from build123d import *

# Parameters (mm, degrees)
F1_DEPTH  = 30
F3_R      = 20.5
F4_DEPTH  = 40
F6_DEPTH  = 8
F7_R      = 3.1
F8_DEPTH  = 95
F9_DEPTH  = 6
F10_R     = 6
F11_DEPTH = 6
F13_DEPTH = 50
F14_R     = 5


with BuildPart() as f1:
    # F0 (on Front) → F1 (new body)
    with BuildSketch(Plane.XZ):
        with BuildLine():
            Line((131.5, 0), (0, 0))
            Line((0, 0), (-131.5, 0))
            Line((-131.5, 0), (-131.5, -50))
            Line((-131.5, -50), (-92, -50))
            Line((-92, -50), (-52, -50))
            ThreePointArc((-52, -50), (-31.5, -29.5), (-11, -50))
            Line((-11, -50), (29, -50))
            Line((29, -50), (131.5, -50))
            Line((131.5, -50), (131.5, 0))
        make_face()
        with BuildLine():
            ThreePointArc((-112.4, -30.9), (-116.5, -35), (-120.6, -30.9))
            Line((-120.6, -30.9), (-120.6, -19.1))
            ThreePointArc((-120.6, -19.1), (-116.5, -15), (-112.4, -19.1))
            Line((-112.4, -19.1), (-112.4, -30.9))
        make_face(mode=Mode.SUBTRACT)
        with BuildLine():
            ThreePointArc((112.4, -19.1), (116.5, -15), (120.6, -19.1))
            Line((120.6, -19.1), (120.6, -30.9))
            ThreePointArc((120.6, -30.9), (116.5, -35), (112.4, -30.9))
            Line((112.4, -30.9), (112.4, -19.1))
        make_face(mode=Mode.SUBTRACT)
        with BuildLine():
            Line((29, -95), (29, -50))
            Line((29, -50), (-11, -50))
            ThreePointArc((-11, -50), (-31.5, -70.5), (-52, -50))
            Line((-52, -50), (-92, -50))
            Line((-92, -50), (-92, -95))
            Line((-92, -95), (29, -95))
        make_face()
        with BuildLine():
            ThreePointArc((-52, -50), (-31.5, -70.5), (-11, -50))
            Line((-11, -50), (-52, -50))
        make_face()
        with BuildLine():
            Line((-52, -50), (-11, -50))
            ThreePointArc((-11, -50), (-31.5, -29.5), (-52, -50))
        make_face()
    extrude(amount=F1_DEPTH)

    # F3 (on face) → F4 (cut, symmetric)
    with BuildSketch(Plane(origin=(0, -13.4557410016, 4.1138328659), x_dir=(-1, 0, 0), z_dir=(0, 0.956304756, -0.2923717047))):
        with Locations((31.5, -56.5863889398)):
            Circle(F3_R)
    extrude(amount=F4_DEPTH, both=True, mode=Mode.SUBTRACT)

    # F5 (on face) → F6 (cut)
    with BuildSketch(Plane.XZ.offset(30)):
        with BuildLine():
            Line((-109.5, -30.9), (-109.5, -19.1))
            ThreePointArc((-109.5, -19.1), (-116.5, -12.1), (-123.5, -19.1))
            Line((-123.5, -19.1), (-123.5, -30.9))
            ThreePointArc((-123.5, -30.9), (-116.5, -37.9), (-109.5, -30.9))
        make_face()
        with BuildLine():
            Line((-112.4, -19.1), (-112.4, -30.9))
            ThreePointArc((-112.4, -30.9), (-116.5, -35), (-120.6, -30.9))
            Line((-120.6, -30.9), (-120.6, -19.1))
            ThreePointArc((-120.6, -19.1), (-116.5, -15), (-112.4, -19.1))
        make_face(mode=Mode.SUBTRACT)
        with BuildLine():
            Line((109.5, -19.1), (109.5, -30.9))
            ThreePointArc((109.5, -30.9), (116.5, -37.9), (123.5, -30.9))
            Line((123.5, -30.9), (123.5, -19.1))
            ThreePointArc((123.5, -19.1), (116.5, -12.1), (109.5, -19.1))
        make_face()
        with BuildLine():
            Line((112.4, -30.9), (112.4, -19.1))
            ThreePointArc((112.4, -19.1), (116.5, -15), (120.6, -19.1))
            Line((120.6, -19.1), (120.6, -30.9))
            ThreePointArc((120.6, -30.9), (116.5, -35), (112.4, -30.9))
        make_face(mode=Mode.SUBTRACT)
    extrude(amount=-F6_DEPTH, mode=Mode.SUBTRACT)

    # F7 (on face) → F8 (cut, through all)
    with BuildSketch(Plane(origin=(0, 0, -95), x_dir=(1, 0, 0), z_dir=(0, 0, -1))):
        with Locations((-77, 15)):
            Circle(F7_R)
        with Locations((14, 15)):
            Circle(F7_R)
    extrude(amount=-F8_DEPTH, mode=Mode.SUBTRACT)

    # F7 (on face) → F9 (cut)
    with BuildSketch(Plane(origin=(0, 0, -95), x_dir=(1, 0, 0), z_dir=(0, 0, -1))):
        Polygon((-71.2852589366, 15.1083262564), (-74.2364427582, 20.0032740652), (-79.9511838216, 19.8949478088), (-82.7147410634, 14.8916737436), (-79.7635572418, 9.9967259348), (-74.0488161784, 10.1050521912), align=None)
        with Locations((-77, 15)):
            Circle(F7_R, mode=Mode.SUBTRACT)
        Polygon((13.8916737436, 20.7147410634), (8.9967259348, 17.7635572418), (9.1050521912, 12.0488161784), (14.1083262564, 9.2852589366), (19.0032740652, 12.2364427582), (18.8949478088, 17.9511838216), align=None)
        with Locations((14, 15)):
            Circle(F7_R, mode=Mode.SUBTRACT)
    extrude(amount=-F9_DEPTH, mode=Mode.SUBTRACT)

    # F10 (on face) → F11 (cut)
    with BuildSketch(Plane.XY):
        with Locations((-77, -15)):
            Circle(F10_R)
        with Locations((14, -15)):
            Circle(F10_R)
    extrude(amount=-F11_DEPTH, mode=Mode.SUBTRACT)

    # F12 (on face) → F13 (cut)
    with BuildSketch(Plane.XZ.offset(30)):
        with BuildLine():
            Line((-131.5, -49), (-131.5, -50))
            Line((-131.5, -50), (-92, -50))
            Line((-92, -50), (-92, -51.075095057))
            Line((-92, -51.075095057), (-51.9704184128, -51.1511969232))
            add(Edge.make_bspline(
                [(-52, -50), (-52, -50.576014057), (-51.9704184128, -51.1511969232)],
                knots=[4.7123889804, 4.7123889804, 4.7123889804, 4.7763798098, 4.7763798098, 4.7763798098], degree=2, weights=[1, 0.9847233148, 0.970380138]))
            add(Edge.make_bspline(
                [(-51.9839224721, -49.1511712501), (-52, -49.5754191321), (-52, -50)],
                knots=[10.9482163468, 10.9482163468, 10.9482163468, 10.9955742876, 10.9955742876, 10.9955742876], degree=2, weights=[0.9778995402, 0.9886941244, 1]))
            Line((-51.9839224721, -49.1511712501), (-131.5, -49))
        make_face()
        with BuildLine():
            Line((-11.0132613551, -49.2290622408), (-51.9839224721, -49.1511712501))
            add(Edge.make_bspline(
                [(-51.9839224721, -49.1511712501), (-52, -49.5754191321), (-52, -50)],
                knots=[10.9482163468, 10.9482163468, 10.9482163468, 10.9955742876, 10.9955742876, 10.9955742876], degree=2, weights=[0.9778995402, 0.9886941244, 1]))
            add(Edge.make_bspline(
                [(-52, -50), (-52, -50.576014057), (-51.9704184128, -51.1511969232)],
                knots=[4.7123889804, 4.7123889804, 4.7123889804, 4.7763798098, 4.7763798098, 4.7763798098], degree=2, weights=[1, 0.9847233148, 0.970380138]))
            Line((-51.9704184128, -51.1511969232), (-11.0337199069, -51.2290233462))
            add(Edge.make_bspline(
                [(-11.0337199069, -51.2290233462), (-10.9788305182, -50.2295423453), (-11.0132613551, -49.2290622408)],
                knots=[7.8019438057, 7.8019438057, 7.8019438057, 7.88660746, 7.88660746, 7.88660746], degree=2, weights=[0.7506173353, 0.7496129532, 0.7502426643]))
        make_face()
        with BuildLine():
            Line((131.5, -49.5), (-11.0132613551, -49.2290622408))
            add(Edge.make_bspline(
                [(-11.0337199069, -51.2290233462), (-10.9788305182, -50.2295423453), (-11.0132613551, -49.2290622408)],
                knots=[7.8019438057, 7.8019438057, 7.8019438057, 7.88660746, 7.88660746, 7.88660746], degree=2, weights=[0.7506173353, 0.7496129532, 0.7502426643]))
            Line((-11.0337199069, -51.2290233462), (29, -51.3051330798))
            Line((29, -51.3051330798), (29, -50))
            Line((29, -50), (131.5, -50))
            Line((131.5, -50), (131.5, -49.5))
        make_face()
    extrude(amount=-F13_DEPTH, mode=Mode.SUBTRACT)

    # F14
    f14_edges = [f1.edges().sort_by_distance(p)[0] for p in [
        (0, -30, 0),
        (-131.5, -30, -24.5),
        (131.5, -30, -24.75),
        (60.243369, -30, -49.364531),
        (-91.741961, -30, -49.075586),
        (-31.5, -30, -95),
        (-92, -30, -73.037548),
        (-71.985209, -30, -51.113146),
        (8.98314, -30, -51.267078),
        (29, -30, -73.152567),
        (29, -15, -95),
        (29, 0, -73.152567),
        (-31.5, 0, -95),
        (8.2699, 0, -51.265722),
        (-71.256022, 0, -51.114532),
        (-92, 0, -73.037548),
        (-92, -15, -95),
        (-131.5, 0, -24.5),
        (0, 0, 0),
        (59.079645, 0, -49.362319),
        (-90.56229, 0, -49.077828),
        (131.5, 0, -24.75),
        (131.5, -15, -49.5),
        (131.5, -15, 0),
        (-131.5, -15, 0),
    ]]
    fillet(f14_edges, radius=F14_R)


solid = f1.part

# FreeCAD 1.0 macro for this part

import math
import FreeCAD as App
import Part
import Sketcher

V = App.Vector
Q = App.Units.Quantity


def edges_at(feature, points):
    """Names of the edges that pass closest to the given points."""
    edges = feature.Shape.Edges
    near = lambda p: min(range(len(edges)), key=lambda i: edges[i].distToShape(Part.Vertex(*p))[0])
    return sorted({f"Edge{near(p) + 1}" for p in points})


def add_polygon(sketch, points):
    """Adds a closed chain of lines whose ends are joined by coincident constraints."""
    first, n = sketch.GeometryCount, len(points)
    for a, b in zip(points, points[1:] + points[:1]):
        sketch.addGeometry(Part.LineSegment(App.Vector(*a, 0), App.Vector(*b, 0)), False)
    for i in range(n):
        sketch.addConstraint(Sketcher.Constraint("Coincident", first + i, 2, first + (i + 1) % n, 1))

doc = App.newDocument("Part")
params = doc.addObject("Spreadsheet::Sheet", "Params")
for row, (alias, value) in enumerate([
    ("sketch1_radius", "4.1 mm"),
    ("sketch1_width", "263 mm"),
    ("sketch1_width2", "121 mm"),
    ("sketch1_height", "50 mm"),
    ("sketch1_height2", "45 mm"),
    ("pad1_length", "30 mm"),
    ("sketch2_diameter", "41 mm"),
    ("pocket1_length", "80 mm"),
    ("sketch3_radius", "7 mm"),
    ("sketch3_radius2", "4.1 mm"),
    ("sketch3_height", "11.8 mm"),
    ("pocket2_length", "8 mm"),
    ("sketch4_diameter", "6.2 mm"),
    ("sketch5_diameter", "6.2 mm"),
    ("pocket4_length", "6 mm"),
    ("sketch6_diameter", "12 mm"),
    ("pocket5_length", "6 mm"),
    ("sketch7_height", "1 mm"),
    ("sketch7_width", "39.5 mm"),
    ("sketch7_width2", "102.5 mm"),
    ("sketch7_height2", "0.5 mm"),
    ("pocket6_length", "50 mm"),
    ("fillet_radius", "5 mm"),
], start=1):
    params.set(f"A{row}", alias)
    params.set(f"B{row}", "=" + value)
    params.setAlias(f"B{row}", alias)

body = doc.addObject("PartDesign::Body", "Body")
body.AllowCompound = True

sketch1 = body.newObject("Sketcher::SketchObject", "Sketch")
sketch1.AttachmentSupport = (doc.getObject("XZ_Plane"), [""])
sketch1.MapMode = "FlatFace"
add_polygon(sketch1, [(131.5, 0), (-131.5, 0), (-131.5, -50), (-92, -50), (-92, -95), (29, -95), (29, -50), (131.5, -50)])
sketch1.addGeometry(Part.LineSegment(V(-112.4, -19.1, 0), V(-112.4, -30.9, 0)), False)
sketch1.addGeometry(Part.ArcOfCircle(Part.Circle(V(-116.5, -30.9, 0), V(0, 0, 1), 4.1), math.radians(180), math.radians(360)), False)
sketch1.addGeometry(Part.LineSegment(V(-120.6, -30.9, 0), V(-120.6, -19.1, 0)), False)
sketch1.addGeometry(Part.ArcOfCircle(Part.Circle(V(-116.5, -19.1, 0), V(0, 0, 1), 4.1), math.radians(0), math.radians(180)), False)
sketch1.addGeometry(Part.LineSegment(V(112.4, -30.9, 0), V(112.4, -19.1, 0)), False)
sketch1.addGeometry(Part.ArcOfCircle(Part.Circle(V(116.5, -19.1, 0), V(0, 0, 1), 4.1), math.radians(0), math.radians(180)), False)
sketch1.addGeometry(Part.LineSegment(V(120.6, -19.1, 0), V(120.6, -30.9, 0)), False)
sketch1.addGeometry(Part.ArcOfCircle(Part.Circle(V(116.5, -30.9, 0), V(0, 0, 1), 4.1), math.radians(180), math.radians(360)), False)
sketch1.addConstraint([
    Sketcher.Constraint("Tangent", 8, 2, 9, 2),
    Sketcher.Constraint("Tangent", 9, 1, 10, 1),
    Sketcher.Constraint("Tangent", 10, 2, 11, 2),
    Sketcher.Constraint("Tangent", 11, 1, 8, 1),
    Sketcher.Constraint("Tangent", 12, 2, 13, 2),
    Sketcher.Constraint("Tangent", 13, 1, 14, 1),
    Sketcher.Constraint("Tangent", 14, 2, 15, 2),
    Sketcher.Constraint("Tangent", 15, 1, 12, 1),
    Sketcher.Constraint("Horizontal", 0),
    Sketcher.Constraint("Vertical", 1),
    Sketcher.Constraint("Horizontal", 2),
    Sketcher.Constraint("Vertical", 3),
    Sketcher.Constraint("Horizontal", 4),
    Sketcher.Constraint("Vertical", 5),
    Sketcher.Constraint("Horizontal", 6),
    Sketcher.Constraint("Vertical", 7),
    Sketcher.Constraint("Vertical", 8),
    Sketcher.Constraint("Vertical", 10),
    Sketcher.Constraint("Vertical", 12),
    Sketcher.Constraint("Vertical", 14),
    Sketcher.Constraint("Equal", 11, 13),
    Sketcher.Constraint("Symmetric", 0, 2, 7, 2, -1, 1),
    Sketcher.Constraint("Symmetric", 11, 3, 13, 3, -2),
    Sketcher.Constraint("Horizontal", 9, 3, 15, 3),
    Sketcher.Constraint("Horizontal", 2, 2, 5, 2),
    Sketcher.Constraint("Radius", 9, Q("4.1 mm")),
    Sketcher.Constraint("DistanceX", 0, 2, 0, 1, Q("263 mm")),
    Sketcher.Constraint("DistanceX", 4, 1, 4, 2, Q("121 mm")),
    Sketcher.Constraint("DistanceY", 1, 2, 1, 1, Q("50 mm")),
    Sketcher.Constraint("DistanceY", 3, 2, 3, 1, Q("45 mm")),
    Sketcher.Constraint("DistanceX", 2, 1, 2, 2, Q("39.5 mm")),
    Sketcher.Constraint("DistanceY", 8, 2, 8, 1, Q("11.8 mm")),
    Sketcher.Constraint("DistanceX", 11, 3, 13, 3, Q("233 mm")),
    Sketcher.Constraint("DistanceY", 9, 3, -1, 1, Q("30.9 mm")),
])
sketch1.setExpression("Constraints[33]", "Params.sketch1_radius")
sketch1.setExpression("Constraints[34]", "Params.sketch1_width")
sketch1.setExpression("Constraints[35]", "Params.sketch1_width2")
sketch1.setExpression("Constraints[36]", "Params.sketch1_height")
sketch1.setExpression("Constraints[37]", "Params.sketch1_height2")
pad1 = body.newObject("PartDesign::Pad", "Pad")
pad1.Profile = sketch1
pad1.setExpression("Length", "Params.pad1_length")

sketch2 = body.newObject("Sketcher::SketchObject", "Sketch001")
sketch2.Placement = App.Placement(V(0, -13.455741, 4.113833), App.Rotation(V(-1, 0, 0), V(0, 0.292371705, 0.956304756), V(0, 0.956304756, -0.292371705), "ZXY"))
sketch2.addGeometry(Part.Circle(V(32, -57, 0), V(0, 0, 1), 20), False)
sketch2.addConstraint([
    Sketcher.Constraint("Diameter", 0, Q("41 mm")),
    Sketcher.Constraint("DistanceX", -1, 1, 0, 3, Q("31.5 mm")),
    Sketcher.Constraint("DistanceY", 0, 3, -1, 1, Q("56.586389 mm")),
])
sketch2.setExpression("Constraints[0]", "Params.sketch2_diameter")
pocket1 = body.newObject("PartDesign::Pocket", "Pocket")
pocket1.Profile = sketch2
pocket1.setExpression("Length", "Params.pocket1_length")
pocket1.Midplane = True

sketch3 = body.newObject("Sketcher::SketchObject", "Sketch002")
sketch3.AttachmentSupport = (doc.getObject("XZ_Plane"), [""])
sketch3.MapMode = "FlatFace"
sketch3.AttachmentOffset = App.Placement(V(0, 0, 30), App.Rotation())
sketch3.addGeometry([
    Part.LineSegment(V(-109.5, -30.9, 0), V(-109.5, -19.1, 0)),
    Part.ArcOfCircle(Part.Circle(V(-116.5, -19.1, 0), V(0, 0, 1), 7), math.radians(0), math.radians(180)),
    Part.LineSegment(V(-123.5, -19.1, 0), V(-123.5, -30.9, 0)),
    Part.ArcOfCircle(Part.Circle(V(-116.5, -30.9, 0), V(0, 0, 1), 7), math.radians(180), math.radians(360)),
    Part.ArcOfCircle(Part.Circle(V(-116.5, -19.1, 0), V(0, 0, 1), 4.1), math.radians(0), math.radians(180)),
    Part.LineSegment(V(-112.4, -19.1, 0), V(-112.4, -30.9, 0)),
    Part.ArcOfCircle(Part.Circle(V(-116.5, -30.9, 0), V(0, 0, 1), 4.1), math.radians(180), math.radians(360)),
    Part.LineSegment(V(-120.6, -30.9, 0), V(-120.6, -19.1, 0)),
    Part.LineSegment(V(109.5, -19.1, 0), V(109.5, -30.9, 0)),
    Part.ArcOfCircle(Part.Circle(V(116.5, -30.9, 0), V(0, 0, 1), 7), math.radians(180), math.radians(360)),
    Part.LineSegment(V(123.5, -30.9, 0), V(123.5, -19.1, 0)),
    Part.ArcOfCircle(Part.Circle(V(116.5, -19.1, 0), V(0, 0, 1), 7), math.radians(0), math.radians(180)),
    Part.ArcOfCircle(Part.Circle(V(116.5, -30.9, 0), V(0, 0, 1), 4.1), math.radians(180), math.radians(360)),
    Part.LineSegment(V(112.4, -30.9, 0), V(112.4, -19.1, 0)),
    Part.ArcOfCircle(Part.Circle(V(116.5, -19.1, 0), V(0, 0, 1), 4.1), math.radians(0), math.radians(180)),
    Part.LineSegment(V(120.6, -19.1, 0), V(120.6, -30.9, 0)),
], False)
sketch3.addConstraint([
    Sketcher.Constraint("Tangent", 0, 2, 1, 1),
    Sketcher.Constraint("Tangent", 1, 2, 2, 1),
    Sketcher.Constraint("Tangent", 2, 2, 3, 1),
    Sketcher.Constraint("Tangent", 3, 2, 0, 1),
    Sketcher.Constraint("Tangent", 4, 1, 5, 1),
    Sketcher.Constraint("Tangent", 5, 2, 6, 2),
    Sketcher.Constraint("Tangent", 6, 1, 7, 1),
    Sketcher.Constraint("Tangent", 7, 2, 4, 2),
    Sketcher.Constraint("Tangent", 8, 2, 9, 1),
    Sketcher.Constraint("Tangent", 9, 2, 10, 1),
    Sketcher.Constraint("Tangent", 10, 2, 11, 1),
    Sketcher.Constraint("Tangent", 11, 2, 8, 1),
    Sketcher.Constraint("Tangent", 12, 1, 13, 1),
    Sketcher.Constraint("Tangent", 13, 2, 14, 2),
    Sketcher.Constraint("Tangent", 14, 1, 15, 1),
    Sketcher.Constraint("Tangent", 15, 2, 12, 2),
    Sketcher.Constraint("Vertical", 0),
    Sketcher.Constraint("Vertical", 2),
    Sketcher.Constraint("Vertical", 5),
    Sketcher.Constraint("Vertical", 7),
    Sketcher.Constraint("Vertical", 8),
    Sketcher.Constraint("Vertical", 10),
    Sketcher.Constraint("Vertical", 13),
    Sketcher.Constraint("Vertical", 15),
    Sketcher.Constraint("Coincident", 4, 3, 1, 3),
    Sketcher.Constraint("Coincident", 12, 3, 9, 3),
    Sketcher.Constraint("Equal", 3, 9),
    Sketcher.Constraint("Equal", 6, 12),
    Sketcher.Constraint("Symmetric", 3, 3, 9, 3, -2),
    Sketcher.Constraint("Horizontal", 6, 3, 9, 3),
    Sketcher.Constraint("Horizontal", 4, 3, 11, 3),
    Sketcher.Constraint("Horizontal", 4, 3, 14, 3),
    Sketcher.Constraint("Radius", 1, Q("7 mm")),
    Sketcher.Constraint("Radius", 4, Q("4.1 mm")),
    Sketcher.Constraint("DistanceY", 0, 1, 0, 2, Q("11.8 mm")),
    Sketcher.Constraint("DistanceX", 3, 3, 9, 3, Q("233 mm")),
    Sketcher.Constraint("DistanceY", 1, 3, -1, 1, Q("19.1 mm")),
])
sketch3.setExpression("Constraints[32]", "Params.sketch3_radius")
sketch3.setExpression("Constraints[33]", "Params.sketch3_radius2")
sketch3.setExpression("Constraints[34]", "Params.sketch3_height")
pocket2 = body.newObject("PartDesign::Pocket", "Pocket001")
pocket2.Profile = sketch3
pocket2.setExpression("Length", "Params.pocket2_length")

sketch4 = body.newObject("Sketcher::SketchObject", "Sketch003")
sketch4.AttachmentSupport = (doc.getObject("XY_Plane"), [""])
sketch4.MapMode = "FlatFace"
sketch4.AttachmentOffset = App.Placement(V(0, 0, -95), App.Rotation())
sketch4.addGeometry([
    Part.Circle(V(-77, -15, 0), V(0, 0, 1), 3.1),
    Part.Circle(V(14, -15, 0), V(0, 0, 1), 3.1),
], False)
sketch4.addConstraint([
    Sketcher.Constraint("Equal", 0, 1),
    Sketcher.Constraint("Horizontal", 0, 3, 1, 3),
    Sketcher.Constraint("Diameter", 0, Q("6.2 mm")),
    Sketcher.Constraint("DistanceX", 0, 3, -1, 1, Q("77 mm")),
    Sketcher.Constraint("DistanceY", 0, 3, -1, 1, Q("15 mm")),
    Sketcher.Constraint("DistanceX", -1, 1, 1, 3, Q("14 mm")),
])
sketch4.setExpression("Constraints[2]", "Params.sketch4_diameter")
pocket3 = body.newObject("PartDesign::Pocket", "Pocket002")
pocket3.Profile = sketch4
pocket3.Type = "ThroughAll"
pocket3.Reversed = True

sketch5 = body.newObject("Sketcher::SketchObject", "Sketch004")
sketch5.AttachmentSupport = (doc.getObject("XY_Plane"), [""])
sketch5.MapMode = "FlatFace"
sketch5.AttachmentOffset = App.Placement(V(0, 0, -95), App.Rotation())
add_polygon(sketch5, [(-71.3, -15.1), (-74.2, -20), (-80, -19.9), (-82.7, -14.9), (-79.8, -10), (-74, -10.1)])
sketch5.addGeometry(Part.Circle(V(-77, -15, 0), V(0, 0, 1), 3.1), False)
add_polygon(sketch5, [(13.9, -20.7), (9, -17.8), (9.1, -12), (14.1, -9.3), (19, -12.2), (18.9, -18)])
sketch5.addGeometry(Part.Circle(V(14, -15, 0), V(0, 0, 1), 3.1), False)
sketch5.addConstraint([
    Sketcher.Constraint("Equal", 6, 13),
    Sketcher.Constraint("Parallel", 0, 3),
    Sketcher.Constraint("Parallel", 1, 4),
    Sketcher.Constraint("Parallel", 2, 5),
    Sketcher.Constraint("Perpendicular", 3, 7),
    Sketcher.Constraint("Perpendicular", 4, 8),
    Sketcher.Constraint("Perpendicular", 5, 9),
    Sketcher.Constraint("Parallel", 7, 10),
    Sketcher.Constraint("Parallel", 8, 11),
    Sketcher.Constraint("Parallel", 9, 12),
    Sketcher.Constraint("Horizontal", 6, 3, 13, 3),
    Sketcher.Constraint("Equal", 0, 1),
    Sketcher.Constraint("Equal", 1, 2),
    Sketcher.Constraint("Equal", 2, 3),
    Sketcher.Constraint("Equal", 5, 7),
    Sketcher.Constraint("Equal", 7, 8),
    Sketcher.Constraint("Equal", 8, 9),
    Sketcher.Constraint("Equal", 9, 10),
    Sketcher.Constraint("Diameter", 6, Q("6.2 mm")),
    Sketcher.Constraint("DistanceX", 6, 3, -1, 1, Q("77 mm")),
    Sketcher.Constraint("DistanceY", 6, 3, -1, 1, Q("15 mm")),
    Sketcher.Constraint("DistanceX", -1, 1, 13, 3, Q("14 mm")),
    Sketcher.Constraint("DistanceX", 2, 2, 0, 2, Q("8.478298 mm")),
    Sketcher.Constraint("DistanceY", 0, 2, 2, 2, Q("5.1116 mm")),
    Sketcher.Constraint("DistanceX", 2, 2, -1, 1, Q("82.714741 mm")),
    Sketcher.Constraint("DistanceX", 5, 2, -1, 1, Q("71.285259 mm")),
    Sketcher.Constraint("DistanceY", 9, 2, -1, 1, Q("9.285259 mm")),
    Sketcher.Constraint("DistanceX", 1, 2, 0, 2, Q("5.714741 mm")),
    Sketcher.Constraint("DistanceY", 7, 2, 5, 2, Q("2.655231 mm")),
    Sketcher.Constraint("DistanceX", 0, 2, 7, 2, Q("83.233169 mm")),
])
sketch5.setExpression("Constraints[30]", "Params.sketch5_diameter")
pocket4 = body.newObject("PartDesign::Pocket", "Pocket003")
pocket4.Profile = sketch5
pocket4.setExpression("Length", "Params.pocket4_length")
pocket4.Reversed = True

sketch6 = body.newObject("Sketcher::SketchObject", "Sketch005")
sketch6.AttachmentSupport = (doc.getObject("XY_Plane"), [""])
sketch6.MapMode = "FlatFace"
sketch6.addGeometry([
    Part.Circle(V(-77, -15, 0), V(0, 0, 1), 6),
    Part.Circle(V(14, -15, 0), V(0, 0, 1), 6),
], False)
sketch6.addConstraint([
    Sketcher.Constraint("Equal", 0, 1),
    Sketcher.Constraint("Horizontal", 0, 3, 1, 3),
    Sketcher.Constraint("Diameter", 0, Q("12 mm")),
    Sketcher.Constraint("DistanceX", 0, 3, -1, 1, Q("77 mm")),
    Sketcher.Constraint("DistanceY", 0, 3, -1, 1, Q("15 mm")),
    Sketcher.Constraint("DistanceX", -1, 1, 1, 3, Q("14 mm")),
])
sketch6.setExpression("Constraints[2]", "Params.sketch6_diameter")
pocket5 = body.newObject("PartDesign::Pocket", "Pocket004")
pocket5.Profile = sketch6
pocket5.setExpression("Length", "Params.pocket5_length")

sketch7 = body.newObject("Sketcher::SketchObject", "Sketch006")
sketch7.AttachmentSupport = (doc.getObject("XZ_Plane"), [""])
sketch7.MapMode = "FlatFace"
sketch7.AttachmentOffset = App.Placement(V(0, 0, 30), App.Rotation())
add_polygon(sketch7, [(-131.5, -49), (-131.5, -50), (-92, -50), (-92, -51.1), (-52, -51.2), (-11, -51.2), (29, -51.3), (29, -50), (131.5, -50), (131.5, -49.5)])
sketch7.addConstraint([
    Sketcher.Constraint("Vertical", 0),
    Sketcher.Constraint("Horizontal", 1),
    Sketcher.Constraint("Vertical", 2),
    Sketcher.Constraint("Vertical", 6),
    Sketcher.Constraint("Horizontal", 7),
    Sketcher.Constraint("Vertical", 8),
    Sketcher.Constraint("Symmetric", 0, 2, 7, 2, -2),
    Sketcher.Constraint("Parallel", 3, 4),
    Sketcher.Constraint("Parallel", 4, 5),
    Sketcher.Constraint("Parallel", 5, 9),
    Sketcher.Constraint("DistanceY", 0, 2, 0, 1, Q("1 mm")),
    Sketcher.Constraint("DistanceX", 1, 1, 1, 2, Q("39.5 mm")),
    Sketcher.Constraint("DistanceX", 7, 1, 7, 2, Q("102.5 mm")),
    Sketcher.Constraint("DistanceY", 8, 1, 8, 2, Q("0.5 mm")),
    Sketcher.Constraint("DistanceY", 0, 2, -1, 1, Q("50 mm")),
    Sketcher.Constraint("DistanceX", 1, 2, -1, 1, Q("92 mm")),
    Sketcher.Constraint("DistanceX", 3, 2, 4, 2, Q("40.936699 mm")),
    Sketcher.Constraint("DistanceY", 2, 2, 2, 1, Q("1.075095 mm")),
    Sketcher.Constraint("DistanceX", 3, 2, -1, 1, Q("51.970418 mm")),
])
sketch7.setExpression("Constraints[20]", "Params.sketch7_height")
sketch7.setExpression("Constraints[21]", "Params.sketch7_width")
sketch7.setExpression("Constraints[22]", "Params.sketch7_width2")
sketch7.setExpression("Constraints[23]", "Params.sketch7_height2")
pocket6 = body.newObject("PartDesign::Pocket", "Pocket005")
pocket6.Profile = sketch7
pocket6.setExpression("Length", "Params.pocket6_length")
doc.recompute()

fillet = body.newObject("PartDesign::Fillet", "Fillet")
fillet.Base = (pocket6, edges_at(pocket6, [
    (0, -30, 0),
    (-131.5, -30, -24.5),
    (131.5, -30, -24.75),
    (60.243, -30, -49.365),
    (-91.742, -30, -49.076),
    (-31.5, -30, -95),
    (-92, -30, -73.038),
    (-71.985, -30, -51.113),
    (8.983, -30, -51.267),
    (29, -30, -73.153),
    (29, -15, -95),
    (29, 0, -73.153),
    (-31.5, 0, -95),
    (8.983, 0, -51.267),
    (-71.985, 0, -51.113),
    (-92, 0, -73.038),
    (-92, -15, -95),
    (-131.5, 0, -24.5),
    (0, 0, 0),
    (59.08, 0, -49.362),
    (-90.562, 0, -49.078),
    (131.5, 0, -24.75),
    (131.5, -15, -49.5),
    (131.5, -15, 0),
    (-131.5, -15, 0),
]))
fillet.setExpression("Radius", "Params.fillet_radius")

doc.recompute()
